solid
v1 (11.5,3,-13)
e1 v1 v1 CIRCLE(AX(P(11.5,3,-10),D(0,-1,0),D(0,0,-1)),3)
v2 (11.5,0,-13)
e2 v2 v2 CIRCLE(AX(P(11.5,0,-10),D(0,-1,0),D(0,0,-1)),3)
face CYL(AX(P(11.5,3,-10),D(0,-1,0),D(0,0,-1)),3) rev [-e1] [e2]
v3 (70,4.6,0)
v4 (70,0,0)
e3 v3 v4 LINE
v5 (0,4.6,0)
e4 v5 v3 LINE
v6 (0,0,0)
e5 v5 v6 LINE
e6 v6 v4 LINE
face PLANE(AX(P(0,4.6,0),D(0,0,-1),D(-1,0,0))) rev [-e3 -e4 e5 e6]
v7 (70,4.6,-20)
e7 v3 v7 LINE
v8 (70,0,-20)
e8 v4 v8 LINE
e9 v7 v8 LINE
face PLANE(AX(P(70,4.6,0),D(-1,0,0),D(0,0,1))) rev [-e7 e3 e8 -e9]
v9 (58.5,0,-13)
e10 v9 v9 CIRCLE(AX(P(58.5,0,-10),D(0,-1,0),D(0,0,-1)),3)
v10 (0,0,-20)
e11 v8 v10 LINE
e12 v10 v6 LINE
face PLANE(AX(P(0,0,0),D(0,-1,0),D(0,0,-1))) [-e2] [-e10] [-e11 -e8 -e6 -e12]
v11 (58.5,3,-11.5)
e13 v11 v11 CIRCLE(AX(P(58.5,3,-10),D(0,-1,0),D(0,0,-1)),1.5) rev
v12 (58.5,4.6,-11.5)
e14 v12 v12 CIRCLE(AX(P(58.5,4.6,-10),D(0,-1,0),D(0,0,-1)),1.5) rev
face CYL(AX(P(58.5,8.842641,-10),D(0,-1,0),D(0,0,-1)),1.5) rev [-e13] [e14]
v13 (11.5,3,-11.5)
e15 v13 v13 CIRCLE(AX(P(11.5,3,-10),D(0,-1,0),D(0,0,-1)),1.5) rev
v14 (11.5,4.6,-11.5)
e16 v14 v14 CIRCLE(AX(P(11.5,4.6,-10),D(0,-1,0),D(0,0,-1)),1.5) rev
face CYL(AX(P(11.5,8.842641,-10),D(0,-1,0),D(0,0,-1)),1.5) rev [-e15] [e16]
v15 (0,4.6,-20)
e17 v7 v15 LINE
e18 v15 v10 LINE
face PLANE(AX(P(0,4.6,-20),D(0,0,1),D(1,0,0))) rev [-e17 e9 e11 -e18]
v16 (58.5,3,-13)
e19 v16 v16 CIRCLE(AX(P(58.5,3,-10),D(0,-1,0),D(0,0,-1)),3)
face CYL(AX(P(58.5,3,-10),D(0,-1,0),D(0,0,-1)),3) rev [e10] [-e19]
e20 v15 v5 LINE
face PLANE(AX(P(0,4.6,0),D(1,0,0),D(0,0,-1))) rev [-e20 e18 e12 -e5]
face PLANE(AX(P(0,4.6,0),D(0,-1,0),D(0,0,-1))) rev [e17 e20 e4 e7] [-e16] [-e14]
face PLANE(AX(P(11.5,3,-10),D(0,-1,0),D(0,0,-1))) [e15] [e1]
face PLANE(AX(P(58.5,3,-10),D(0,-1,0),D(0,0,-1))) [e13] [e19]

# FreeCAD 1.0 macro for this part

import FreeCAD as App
import Part
import Sketcher
from FreeCAD import Vector
Q = App.Units.Quantity


def add_polygon(sketch, points):
    """Adds a closed chain of lines whose ends are joined by coincident constraints."""
    first, n = sketch.GeometryCount, len(points)
    for a, b in zip(points, points[1:] + points[:1]):
        sketch.addGeometry(Part.LineSegment(App.Vector(*a, 0), App.Vector(*b, 0)), False)
    for i in range(n):
        sketch.addConstraint(Sketcher.Constraint("Coincident", first + i, 2, first + (i + 1) % n, 1))

doc = App.newDocument("Part")
body = doc.addObject("PartDesign::Body", "Body")

sketch1 = body.newObject("Sketcher::SketchObject", "Sketch")
sketch1.AttachmentSupport = (doc.getObject("XZ_Plane"), [""])
sketch1.MapMode = "FlatFace"
add_polygon(sketch1, [(0, -20), (0, 0), (70, 0), (70, -20)])
sketch1.addConstraint(Sketcher.Constraint("Vertical", 0))
sketch1.addConstraint(Sketcher.Constraint("Horizontal", 1))
sketch1.addConstraint(Sketcher.Constraint("Vertical", 2))
sketch1.addConstraint(Sketcher.Constraint("Horizontal", 3))
sketch1.addConstraint(Sketcher.Constraint("Coincident", 0, 2, -1, 1))
sketch1.addConstraint(Sketcher.Constraint("DistanceX", 1, 1, 1, 2, Q("70 mm")))
sketch1.addConstraint(Sketcher.Constraint("DistanceY", 0, 1, 0, 2, Q("20 mm")))
pad1 = body.newObject("PartDesign::Pad", "Pad")
pad1.Profile = sketch1
pad1.Length = 4.6
pad1.Reversed = True

sketch2 = body.newObject("Sketcher::SketchObject", "Sketch001")
sketch2.AttachmentSupport = (doc.getObject("XZ_Plane"), [""])
sketch2.MapMode = "FlatFace"
sketch2.addGeometry(Part.Circle(Vector(58.5, -10, 0), Vector(0, 0, 1), 1.5), False)
sketch2.addGeometry(Part.Circle(Vector(11.5, -10, 0), Vector(0, 0, 1), 1.5), False)
sketch2.addConstraint(Sketcher.Constraint("Equal", 0, 1))
sketch2.addConstraint(Sketcher.Constraint("Horizontal", 0, 3, 1, 3))
sketch2.addConstraint(Sketcher.Constraint("Diameter", 0, Q("3 mm")))
sketch2.addConstraint(Sketcher.Constraint("DistanceY", 0, 3, -1, 1, Q("10 mm")))
sketch2.addConstraint(Sketcher.Constraint("DistanceX", 1, 3, 0, 3, Q("47 mm")))
sketch2.addConstraint(Sketcher.Constraint("DistanceX", -1, 1, 0, 3, Q("58.5 mm")))
pocket1 = body.newObject("PartDesign::Pocket", "Pocket")
pocket1.Profile = sketch2
pocket1.Length = 4.6

sketch3 = body.newObject("Sketcher::SketchObject", "Sketch002")
sketch3.AttachmentSupport = (doc.getObject("XZ_Plane"), [""])
sketch3.MapMode = "FlatFace"
sketch3.addGeometry(Part.Circle(Vector(11.5, -10, 0), Vector(0, 0, 1), 3), False)
sketch3.addGeometry(Part.Circle(Vector(58.5, -10, 0), Vector(0, 0, 1), 3), False)
sketch3.addConstraint(Sketcher.Constraint("Equal", 0, 1))
sketch3.addConstraint(Sketcher.Constraint("Horizontal", 0, 3, 1, 3))
sketch3.addConstraint(Sketcher.Constraint("Diameter", 0, Q("6 mm")))
sketch3.addConstraint(Sketcher.Constraint("DistanceY", 0, 3, -1, 1, Q("10 mm")))
sketch3.addConstraint(Sketcher.Constraint("DistanceX", 0, 3, 1, 3, Q("47 mm")))
sketch3.addConstraint(Sketcher.Constraint("DistanceX", -1, 1, 0, 3, Q("11.5 mm")))
pocket2 = body.newObject("PartDesign::Pocket", "Pocket001")
pocket2.Profile = sketch3
pocket2.Length = 3

doc.recompute()
